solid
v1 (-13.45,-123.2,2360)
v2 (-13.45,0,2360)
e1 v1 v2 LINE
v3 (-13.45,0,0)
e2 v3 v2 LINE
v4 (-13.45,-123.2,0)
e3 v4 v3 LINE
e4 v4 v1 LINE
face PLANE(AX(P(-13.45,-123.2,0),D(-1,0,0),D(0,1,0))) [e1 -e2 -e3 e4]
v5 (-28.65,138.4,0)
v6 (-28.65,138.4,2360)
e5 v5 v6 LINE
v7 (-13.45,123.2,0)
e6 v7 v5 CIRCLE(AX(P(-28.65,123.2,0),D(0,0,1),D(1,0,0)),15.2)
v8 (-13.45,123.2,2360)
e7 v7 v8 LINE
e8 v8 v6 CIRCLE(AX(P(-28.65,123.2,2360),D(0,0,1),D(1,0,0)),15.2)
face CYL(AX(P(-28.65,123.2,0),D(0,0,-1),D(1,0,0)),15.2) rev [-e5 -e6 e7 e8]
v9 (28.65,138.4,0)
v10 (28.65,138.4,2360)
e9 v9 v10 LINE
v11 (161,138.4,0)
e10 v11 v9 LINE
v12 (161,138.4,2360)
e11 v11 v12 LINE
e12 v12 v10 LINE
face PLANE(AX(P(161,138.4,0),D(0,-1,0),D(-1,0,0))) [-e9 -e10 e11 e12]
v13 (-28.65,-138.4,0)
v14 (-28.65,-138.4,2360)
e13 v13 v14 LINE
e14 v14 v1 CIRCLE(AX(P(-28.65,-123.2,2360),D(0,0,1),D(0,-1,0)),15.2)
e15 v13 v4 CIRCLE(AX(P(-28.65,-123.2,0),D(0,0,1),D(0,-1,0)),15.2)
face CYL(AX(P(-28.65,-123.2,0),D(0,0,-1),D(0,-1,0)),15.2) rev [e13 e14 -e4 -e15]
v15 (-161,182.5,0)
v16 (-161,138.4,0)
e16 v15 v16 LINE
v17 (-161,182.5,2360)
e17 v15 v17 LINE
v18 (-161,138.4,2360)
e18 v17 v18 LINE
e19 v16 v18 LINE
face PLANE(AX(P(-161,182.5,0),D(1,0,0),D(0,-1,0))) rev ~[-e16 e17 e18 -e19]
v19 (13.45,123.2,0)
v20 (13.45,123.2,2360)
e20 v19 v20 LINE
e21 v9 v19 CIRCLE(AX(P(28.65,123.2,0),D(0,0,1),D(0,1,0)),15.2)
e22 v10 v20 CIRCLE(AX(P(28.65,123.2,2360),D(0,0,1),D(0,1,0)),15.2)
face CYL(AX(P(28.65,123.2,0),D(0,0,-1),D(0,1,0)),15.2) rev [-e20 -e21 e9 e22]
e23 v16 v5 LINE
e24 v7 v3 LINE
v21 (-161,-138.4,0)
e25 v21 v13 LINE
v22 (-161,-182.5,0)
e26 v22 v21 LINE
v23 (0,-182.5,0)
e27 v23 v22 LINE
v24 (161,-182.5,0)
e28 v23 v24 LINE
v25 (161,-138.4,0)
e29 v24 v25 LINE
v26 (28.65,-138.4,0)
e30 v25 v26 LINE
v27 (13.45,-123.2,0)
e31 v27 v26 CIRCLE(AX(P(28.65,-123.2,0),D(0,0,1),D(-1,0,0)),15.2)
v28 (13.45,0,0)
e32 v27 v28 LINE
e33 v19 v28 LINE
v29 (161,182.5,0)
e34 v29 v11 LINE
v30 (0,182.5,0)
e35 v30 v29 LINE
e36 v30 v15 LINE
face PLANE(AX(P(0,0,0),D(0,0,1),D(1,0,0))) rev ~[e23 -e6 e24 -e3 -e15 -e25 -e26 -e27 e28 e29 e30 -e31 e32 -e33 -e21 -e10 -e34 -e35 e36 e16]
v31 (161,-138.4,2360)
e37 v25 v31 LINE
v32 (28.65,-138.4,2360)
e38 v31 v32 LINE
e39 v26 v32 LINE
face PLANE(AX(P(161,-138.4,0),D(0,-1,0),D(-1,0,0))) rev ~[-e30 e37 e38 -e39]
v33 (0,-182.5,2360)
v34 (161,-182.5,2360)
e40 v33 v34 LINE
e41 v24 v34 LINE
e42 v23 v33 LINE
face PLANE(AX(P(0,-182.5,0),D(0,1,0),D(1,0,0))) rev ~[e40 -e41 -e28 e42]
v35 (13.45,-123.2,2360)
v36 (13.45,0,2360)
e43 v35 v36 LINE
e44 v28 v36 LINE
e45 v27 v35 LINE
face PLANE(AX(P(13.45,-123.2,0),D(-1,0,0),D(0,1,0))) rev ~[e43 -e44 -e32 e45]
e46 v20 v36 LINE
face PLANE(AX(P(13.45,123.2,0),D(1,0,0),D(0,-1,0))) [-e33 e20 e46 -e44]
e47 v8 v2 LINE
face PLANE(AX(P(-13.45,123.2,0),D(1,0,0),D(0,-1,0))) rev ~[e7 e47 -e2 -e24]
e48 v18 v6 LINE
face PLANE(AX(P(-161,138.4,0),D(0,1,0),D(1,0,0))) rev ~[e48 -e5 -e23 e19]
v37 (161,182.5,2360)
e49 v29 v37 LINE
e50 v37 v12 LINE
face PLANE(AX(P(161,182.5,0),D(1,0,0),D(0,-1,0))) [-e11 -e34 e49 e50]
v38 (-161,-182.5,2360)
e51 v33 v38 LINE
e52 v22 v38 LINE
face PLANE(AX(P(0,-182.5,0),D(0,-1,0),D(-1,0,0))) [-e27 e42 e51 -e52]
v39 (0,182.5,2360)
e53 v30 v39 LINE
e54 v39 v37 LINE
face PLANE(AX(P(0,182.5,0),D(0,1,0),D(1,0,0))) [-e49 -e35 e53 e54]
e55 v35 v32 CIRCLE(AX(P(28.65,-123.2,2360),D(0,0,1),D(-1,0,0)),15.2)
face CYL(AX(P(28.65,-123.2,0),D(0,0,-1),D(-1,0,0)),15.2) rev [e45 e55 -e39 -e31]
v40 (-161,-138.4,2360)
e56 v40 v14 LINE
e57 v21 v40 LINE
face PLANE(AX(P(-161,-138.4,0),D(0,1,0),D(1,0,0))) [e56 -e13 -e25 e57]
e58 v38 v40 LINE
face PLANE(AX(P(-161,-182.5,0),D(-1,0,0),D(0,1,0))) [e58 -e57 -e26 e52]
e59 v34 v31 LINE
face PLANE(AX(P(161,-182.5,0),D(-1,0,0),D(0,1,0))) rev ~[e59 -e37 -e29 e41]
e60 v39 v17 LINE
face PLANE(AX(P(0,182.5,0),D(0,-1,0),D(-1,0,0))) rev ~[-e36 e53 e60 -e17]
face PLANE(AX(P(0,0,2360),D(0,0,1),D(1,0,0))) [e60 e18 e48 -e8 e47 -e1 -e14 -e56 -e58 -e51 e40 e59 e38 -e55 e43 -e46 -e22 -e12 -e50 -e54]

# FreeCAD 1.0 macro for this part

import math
import FreeCAD as App
import Part
import Sketcher
Q = App.Units.Quantity

doc = App.newDocument("Part")
params = doc.addObject("Spreadsheet::Sheet", "Params")
for row, (alias, value) in enumerate([
    ("sketch1_radius", "15.2 mm"),
    ("sketch1_height", "44.1 mm"),
    ("pad1_length", "2360 mm"),
], start=1):
    params.set(f"A{row}", alias)
    params.set(f"B{row}", "=" + value)
    params.setAlias(f"B{row}", alias)

body = doc.addObject("PartDesign::Body", "Body")

# Sketch on XY plane
sketch1 = doc.addObject("Sketcher::SketchObject", "Sketch")
body.addObject(sketch1)
sketch1.AttachmentSupport = (doc.XY_Plane, [""])
sketch1.MapMode = "FlatFace"
sketch1.addGeometry(Part.LineSegment(App.Vector(-161, -138, 0), App.Vector(-161, -182, 0)), False)
sketch1.addGeometry(Part.LineSegment(App.Vector(-161, -182, 0), App.Vector(161, -182, 0)), False)
sketch1.addGeometry(Part.LineSegment(App.Vector(161, -182, 0), App.Vector(161, -138, 0)), False)
sketch1.addGeometry(Part.LineSegment(App.Vector(161, -138, 0), App.Vector(29, -138, 0)), False)
sketch1.addGeometry(Part.ArcOfCircle(Part.Circle(App.Vector(29, -123, 0), App.Vector(0, 0, 1), 15), math.radians(180), math.radians(270)), False)
sketch1.addGeometry(Part.LineSegment(App.Vector(13, -123, 0), App.Vector(13, 123, 0)), False)
sketch1.addGeometry(Part.ArcOfCircle(Part.Circle(App.Vector(29, 123, 0), App.Vector(0, 0, 1), 15), math.radians(90), math.radians(180)), False)
sketch1.addGeometry(Part.LineSegment(App.Vector(29, 138, 0), App.Vector(161, 138, 0)), False)
sketch1.addGeometry(Part.LineSegment(App.Vector(161, 138, 0), App.Vector(161, 182, 0)), False)
sketch1.addGeometry(Part.LineSegment(App.Vector(161, 182, 0), App.Vector(-161, 182, 0)), False)
sketch1.addGeometry(Part.LineSegment(App.Vector(-161, 182, 0), App.Vector(-161, 138, 0)), False)
sketch1.addGeometry(Part.LineSegment(App.Vector(-161, 138, 0), App.Vector(-29, 138, 0)), False)
sketch1.addGeometry(Part.ArcOfCircle(Part.Circle(App.Vector(-29, 123, 0), App.Vector(0, 0, 1), 15), math.radians(0), math.radians(90)), False)
sketch1.addGeometry(Part.LineSegment(App.Vector(-13, 123, 0), App.Vector(-13, -123, 0)), False)
sketch1.addGeometry(Part.ArcOfCircle(Part.Circle(App.Vector(-29, -123, 0), App.Vector(0, 0, 1), 15), math.radians(-90), math.radians(0)), False)
sketch1.addGeometry(Part.LineSegment(App.Vector(-29, -138, 0), App.Vector(-161, -138, 0)), False)
sketch1.addConstraint(Sketcher.Constraint("Coincident", 0, 2, 1, 1))
sketch1.addConstraint(Sketcher.Constraint("Coincident", 1, 2, 2, 1))
sketch1.addConstraint(Sketcher.Constraint("Coincident", 2, 2, 3, 1))
sketch1.addConstraint(Sketcher.Constraint("Tangent", 3, 2, 4, 2))
sketch1.addConstraint(Sketcher.Constraint("Tangent", 4, 1, 5, 1))
sketch1.addConstraint(Sketcher.Constraint("Tangent", 5, 2, 6, 2))
sketch1.addConstraint(Sketcher.Constraint("Tangent", 6, 1, 7, 1))
sketch1.addConstraint(Sketcher.Constraint("Coincident", 7, 2, 8, 1))
sketch1.addConstraint(Sketcher.Constraint("Coincident", 8, 2, 9, 1))
sketch1.addConstraint(Sketcher.Constraint("Coincident", 9, 2, 10, 1))
sketch1.addConstraint(Sketcher.Constraint("Coincident", 10, 2, 11, 1))
sketch1.addConstraint(Sketcher.Constraint("Tangent", 11, 2, 12, 2))
sketch1.addConstraint(Sketcher.Constraint("Tangent", 12, 1, 13, 1))
sketch1.addConstraint(Sketcher.Constraint("Tangent", 13, 2, 14, 2))
sketch1.addConstraint(Sketcher.Constraint("Tangent", 14, 1, 15, 1))
sketch1.addConstraint(Sketcher.Constraint("Coincident", 15, 2, 0, 1))
sketch1.addConstraint(Sketcher.Constraint("Vertical", 0))
sketch1.addConstraint(Sketcher.Constraint("Horizontal", 1))
sketch1.addConstraint(Sketcher.Constraint("Vertical", 2))
sketch1.addConstraint(Sketcher.Constraint("Horizontal", 3))
sketch1.addConstraint(Sketcher.Constraint("Vertical", 5))
sketch1.addConstraint(Sketcher.Constraint("Horizontal", 7))
sketch1.addConstraint(Sketcher.Constraint("Vertical", 8))
sketch1.addConstraint(Sketcher.Constraint("Horizontal", 9))
sketch1.addConstraint(Sketcher.Constraint("Vertical", 10))
sketch1.addConstraint(Sketcher.Constraint("Horizontal", 11))
sketch1.addConstraint(Sketcher.Constraint("Vertical", 13))
sketch1.addConstraint(Sketcher.Constraint("Horizontal", 15))
sketch1.addConstraint(Sketcher.Constraint("Equal", 4, 6))
sketch1.addConstraint(Sketcher.Constraint("Equal", 6, 12))
sketch1.addConstraint(Sketcher.Constraint("Equal", 12, 14))
sketch1.addConstraint(Sketcher.Constraint("Symmetric", 4, 3, 12, 3, -1, 1))
sketch1.addConstraint(Sketcher.Constraint("Symmetric", 0, 2, 8, 2, -1, 1))
sketch1.addConstraint(Sketcher.Constraint("Symmetric", 7, 2, 10, 2, -2))
sketch1.addConstraint(Sketcher.Constraint("Symmetric", 2, 2, 15, 2, -2))
sketch1.addConstraint(Sketcher.Constraint("Radius", 4, Q("15.2 mm")))
sketch1.addConstraint(Sketcher.Constraint("DistanceY", 0, 2, 0, 1, Q("44.1 mm")))
sketch1.addConstraint(Sketcher.Constraint("DistanceX", 0, 2, -1, 1, Q("161 mm")))
sketch1.addConstraint(Sketcher.Constraint("DistanceY", 0, 2, -1, 1, Q("182.5 mm")))
sketch1.addConstraint(Sketcher.Constraint("DistanceX", -1, 1, 4, 1, Q("13.45 mm")))
sketch1.setExpression("Constraints[35]", "Params.sketch1_radius")
sketch1.setExpression("Constraints[36]", "Params.sketch1_height")
pad1 = doc.addObject("PartDesign::Pad", "Pad")
body.addObject(pad1)
pad1.Profile = sketch1
pad1.setExpression("Length", "Params.pad1_length")

doc.recompute()
